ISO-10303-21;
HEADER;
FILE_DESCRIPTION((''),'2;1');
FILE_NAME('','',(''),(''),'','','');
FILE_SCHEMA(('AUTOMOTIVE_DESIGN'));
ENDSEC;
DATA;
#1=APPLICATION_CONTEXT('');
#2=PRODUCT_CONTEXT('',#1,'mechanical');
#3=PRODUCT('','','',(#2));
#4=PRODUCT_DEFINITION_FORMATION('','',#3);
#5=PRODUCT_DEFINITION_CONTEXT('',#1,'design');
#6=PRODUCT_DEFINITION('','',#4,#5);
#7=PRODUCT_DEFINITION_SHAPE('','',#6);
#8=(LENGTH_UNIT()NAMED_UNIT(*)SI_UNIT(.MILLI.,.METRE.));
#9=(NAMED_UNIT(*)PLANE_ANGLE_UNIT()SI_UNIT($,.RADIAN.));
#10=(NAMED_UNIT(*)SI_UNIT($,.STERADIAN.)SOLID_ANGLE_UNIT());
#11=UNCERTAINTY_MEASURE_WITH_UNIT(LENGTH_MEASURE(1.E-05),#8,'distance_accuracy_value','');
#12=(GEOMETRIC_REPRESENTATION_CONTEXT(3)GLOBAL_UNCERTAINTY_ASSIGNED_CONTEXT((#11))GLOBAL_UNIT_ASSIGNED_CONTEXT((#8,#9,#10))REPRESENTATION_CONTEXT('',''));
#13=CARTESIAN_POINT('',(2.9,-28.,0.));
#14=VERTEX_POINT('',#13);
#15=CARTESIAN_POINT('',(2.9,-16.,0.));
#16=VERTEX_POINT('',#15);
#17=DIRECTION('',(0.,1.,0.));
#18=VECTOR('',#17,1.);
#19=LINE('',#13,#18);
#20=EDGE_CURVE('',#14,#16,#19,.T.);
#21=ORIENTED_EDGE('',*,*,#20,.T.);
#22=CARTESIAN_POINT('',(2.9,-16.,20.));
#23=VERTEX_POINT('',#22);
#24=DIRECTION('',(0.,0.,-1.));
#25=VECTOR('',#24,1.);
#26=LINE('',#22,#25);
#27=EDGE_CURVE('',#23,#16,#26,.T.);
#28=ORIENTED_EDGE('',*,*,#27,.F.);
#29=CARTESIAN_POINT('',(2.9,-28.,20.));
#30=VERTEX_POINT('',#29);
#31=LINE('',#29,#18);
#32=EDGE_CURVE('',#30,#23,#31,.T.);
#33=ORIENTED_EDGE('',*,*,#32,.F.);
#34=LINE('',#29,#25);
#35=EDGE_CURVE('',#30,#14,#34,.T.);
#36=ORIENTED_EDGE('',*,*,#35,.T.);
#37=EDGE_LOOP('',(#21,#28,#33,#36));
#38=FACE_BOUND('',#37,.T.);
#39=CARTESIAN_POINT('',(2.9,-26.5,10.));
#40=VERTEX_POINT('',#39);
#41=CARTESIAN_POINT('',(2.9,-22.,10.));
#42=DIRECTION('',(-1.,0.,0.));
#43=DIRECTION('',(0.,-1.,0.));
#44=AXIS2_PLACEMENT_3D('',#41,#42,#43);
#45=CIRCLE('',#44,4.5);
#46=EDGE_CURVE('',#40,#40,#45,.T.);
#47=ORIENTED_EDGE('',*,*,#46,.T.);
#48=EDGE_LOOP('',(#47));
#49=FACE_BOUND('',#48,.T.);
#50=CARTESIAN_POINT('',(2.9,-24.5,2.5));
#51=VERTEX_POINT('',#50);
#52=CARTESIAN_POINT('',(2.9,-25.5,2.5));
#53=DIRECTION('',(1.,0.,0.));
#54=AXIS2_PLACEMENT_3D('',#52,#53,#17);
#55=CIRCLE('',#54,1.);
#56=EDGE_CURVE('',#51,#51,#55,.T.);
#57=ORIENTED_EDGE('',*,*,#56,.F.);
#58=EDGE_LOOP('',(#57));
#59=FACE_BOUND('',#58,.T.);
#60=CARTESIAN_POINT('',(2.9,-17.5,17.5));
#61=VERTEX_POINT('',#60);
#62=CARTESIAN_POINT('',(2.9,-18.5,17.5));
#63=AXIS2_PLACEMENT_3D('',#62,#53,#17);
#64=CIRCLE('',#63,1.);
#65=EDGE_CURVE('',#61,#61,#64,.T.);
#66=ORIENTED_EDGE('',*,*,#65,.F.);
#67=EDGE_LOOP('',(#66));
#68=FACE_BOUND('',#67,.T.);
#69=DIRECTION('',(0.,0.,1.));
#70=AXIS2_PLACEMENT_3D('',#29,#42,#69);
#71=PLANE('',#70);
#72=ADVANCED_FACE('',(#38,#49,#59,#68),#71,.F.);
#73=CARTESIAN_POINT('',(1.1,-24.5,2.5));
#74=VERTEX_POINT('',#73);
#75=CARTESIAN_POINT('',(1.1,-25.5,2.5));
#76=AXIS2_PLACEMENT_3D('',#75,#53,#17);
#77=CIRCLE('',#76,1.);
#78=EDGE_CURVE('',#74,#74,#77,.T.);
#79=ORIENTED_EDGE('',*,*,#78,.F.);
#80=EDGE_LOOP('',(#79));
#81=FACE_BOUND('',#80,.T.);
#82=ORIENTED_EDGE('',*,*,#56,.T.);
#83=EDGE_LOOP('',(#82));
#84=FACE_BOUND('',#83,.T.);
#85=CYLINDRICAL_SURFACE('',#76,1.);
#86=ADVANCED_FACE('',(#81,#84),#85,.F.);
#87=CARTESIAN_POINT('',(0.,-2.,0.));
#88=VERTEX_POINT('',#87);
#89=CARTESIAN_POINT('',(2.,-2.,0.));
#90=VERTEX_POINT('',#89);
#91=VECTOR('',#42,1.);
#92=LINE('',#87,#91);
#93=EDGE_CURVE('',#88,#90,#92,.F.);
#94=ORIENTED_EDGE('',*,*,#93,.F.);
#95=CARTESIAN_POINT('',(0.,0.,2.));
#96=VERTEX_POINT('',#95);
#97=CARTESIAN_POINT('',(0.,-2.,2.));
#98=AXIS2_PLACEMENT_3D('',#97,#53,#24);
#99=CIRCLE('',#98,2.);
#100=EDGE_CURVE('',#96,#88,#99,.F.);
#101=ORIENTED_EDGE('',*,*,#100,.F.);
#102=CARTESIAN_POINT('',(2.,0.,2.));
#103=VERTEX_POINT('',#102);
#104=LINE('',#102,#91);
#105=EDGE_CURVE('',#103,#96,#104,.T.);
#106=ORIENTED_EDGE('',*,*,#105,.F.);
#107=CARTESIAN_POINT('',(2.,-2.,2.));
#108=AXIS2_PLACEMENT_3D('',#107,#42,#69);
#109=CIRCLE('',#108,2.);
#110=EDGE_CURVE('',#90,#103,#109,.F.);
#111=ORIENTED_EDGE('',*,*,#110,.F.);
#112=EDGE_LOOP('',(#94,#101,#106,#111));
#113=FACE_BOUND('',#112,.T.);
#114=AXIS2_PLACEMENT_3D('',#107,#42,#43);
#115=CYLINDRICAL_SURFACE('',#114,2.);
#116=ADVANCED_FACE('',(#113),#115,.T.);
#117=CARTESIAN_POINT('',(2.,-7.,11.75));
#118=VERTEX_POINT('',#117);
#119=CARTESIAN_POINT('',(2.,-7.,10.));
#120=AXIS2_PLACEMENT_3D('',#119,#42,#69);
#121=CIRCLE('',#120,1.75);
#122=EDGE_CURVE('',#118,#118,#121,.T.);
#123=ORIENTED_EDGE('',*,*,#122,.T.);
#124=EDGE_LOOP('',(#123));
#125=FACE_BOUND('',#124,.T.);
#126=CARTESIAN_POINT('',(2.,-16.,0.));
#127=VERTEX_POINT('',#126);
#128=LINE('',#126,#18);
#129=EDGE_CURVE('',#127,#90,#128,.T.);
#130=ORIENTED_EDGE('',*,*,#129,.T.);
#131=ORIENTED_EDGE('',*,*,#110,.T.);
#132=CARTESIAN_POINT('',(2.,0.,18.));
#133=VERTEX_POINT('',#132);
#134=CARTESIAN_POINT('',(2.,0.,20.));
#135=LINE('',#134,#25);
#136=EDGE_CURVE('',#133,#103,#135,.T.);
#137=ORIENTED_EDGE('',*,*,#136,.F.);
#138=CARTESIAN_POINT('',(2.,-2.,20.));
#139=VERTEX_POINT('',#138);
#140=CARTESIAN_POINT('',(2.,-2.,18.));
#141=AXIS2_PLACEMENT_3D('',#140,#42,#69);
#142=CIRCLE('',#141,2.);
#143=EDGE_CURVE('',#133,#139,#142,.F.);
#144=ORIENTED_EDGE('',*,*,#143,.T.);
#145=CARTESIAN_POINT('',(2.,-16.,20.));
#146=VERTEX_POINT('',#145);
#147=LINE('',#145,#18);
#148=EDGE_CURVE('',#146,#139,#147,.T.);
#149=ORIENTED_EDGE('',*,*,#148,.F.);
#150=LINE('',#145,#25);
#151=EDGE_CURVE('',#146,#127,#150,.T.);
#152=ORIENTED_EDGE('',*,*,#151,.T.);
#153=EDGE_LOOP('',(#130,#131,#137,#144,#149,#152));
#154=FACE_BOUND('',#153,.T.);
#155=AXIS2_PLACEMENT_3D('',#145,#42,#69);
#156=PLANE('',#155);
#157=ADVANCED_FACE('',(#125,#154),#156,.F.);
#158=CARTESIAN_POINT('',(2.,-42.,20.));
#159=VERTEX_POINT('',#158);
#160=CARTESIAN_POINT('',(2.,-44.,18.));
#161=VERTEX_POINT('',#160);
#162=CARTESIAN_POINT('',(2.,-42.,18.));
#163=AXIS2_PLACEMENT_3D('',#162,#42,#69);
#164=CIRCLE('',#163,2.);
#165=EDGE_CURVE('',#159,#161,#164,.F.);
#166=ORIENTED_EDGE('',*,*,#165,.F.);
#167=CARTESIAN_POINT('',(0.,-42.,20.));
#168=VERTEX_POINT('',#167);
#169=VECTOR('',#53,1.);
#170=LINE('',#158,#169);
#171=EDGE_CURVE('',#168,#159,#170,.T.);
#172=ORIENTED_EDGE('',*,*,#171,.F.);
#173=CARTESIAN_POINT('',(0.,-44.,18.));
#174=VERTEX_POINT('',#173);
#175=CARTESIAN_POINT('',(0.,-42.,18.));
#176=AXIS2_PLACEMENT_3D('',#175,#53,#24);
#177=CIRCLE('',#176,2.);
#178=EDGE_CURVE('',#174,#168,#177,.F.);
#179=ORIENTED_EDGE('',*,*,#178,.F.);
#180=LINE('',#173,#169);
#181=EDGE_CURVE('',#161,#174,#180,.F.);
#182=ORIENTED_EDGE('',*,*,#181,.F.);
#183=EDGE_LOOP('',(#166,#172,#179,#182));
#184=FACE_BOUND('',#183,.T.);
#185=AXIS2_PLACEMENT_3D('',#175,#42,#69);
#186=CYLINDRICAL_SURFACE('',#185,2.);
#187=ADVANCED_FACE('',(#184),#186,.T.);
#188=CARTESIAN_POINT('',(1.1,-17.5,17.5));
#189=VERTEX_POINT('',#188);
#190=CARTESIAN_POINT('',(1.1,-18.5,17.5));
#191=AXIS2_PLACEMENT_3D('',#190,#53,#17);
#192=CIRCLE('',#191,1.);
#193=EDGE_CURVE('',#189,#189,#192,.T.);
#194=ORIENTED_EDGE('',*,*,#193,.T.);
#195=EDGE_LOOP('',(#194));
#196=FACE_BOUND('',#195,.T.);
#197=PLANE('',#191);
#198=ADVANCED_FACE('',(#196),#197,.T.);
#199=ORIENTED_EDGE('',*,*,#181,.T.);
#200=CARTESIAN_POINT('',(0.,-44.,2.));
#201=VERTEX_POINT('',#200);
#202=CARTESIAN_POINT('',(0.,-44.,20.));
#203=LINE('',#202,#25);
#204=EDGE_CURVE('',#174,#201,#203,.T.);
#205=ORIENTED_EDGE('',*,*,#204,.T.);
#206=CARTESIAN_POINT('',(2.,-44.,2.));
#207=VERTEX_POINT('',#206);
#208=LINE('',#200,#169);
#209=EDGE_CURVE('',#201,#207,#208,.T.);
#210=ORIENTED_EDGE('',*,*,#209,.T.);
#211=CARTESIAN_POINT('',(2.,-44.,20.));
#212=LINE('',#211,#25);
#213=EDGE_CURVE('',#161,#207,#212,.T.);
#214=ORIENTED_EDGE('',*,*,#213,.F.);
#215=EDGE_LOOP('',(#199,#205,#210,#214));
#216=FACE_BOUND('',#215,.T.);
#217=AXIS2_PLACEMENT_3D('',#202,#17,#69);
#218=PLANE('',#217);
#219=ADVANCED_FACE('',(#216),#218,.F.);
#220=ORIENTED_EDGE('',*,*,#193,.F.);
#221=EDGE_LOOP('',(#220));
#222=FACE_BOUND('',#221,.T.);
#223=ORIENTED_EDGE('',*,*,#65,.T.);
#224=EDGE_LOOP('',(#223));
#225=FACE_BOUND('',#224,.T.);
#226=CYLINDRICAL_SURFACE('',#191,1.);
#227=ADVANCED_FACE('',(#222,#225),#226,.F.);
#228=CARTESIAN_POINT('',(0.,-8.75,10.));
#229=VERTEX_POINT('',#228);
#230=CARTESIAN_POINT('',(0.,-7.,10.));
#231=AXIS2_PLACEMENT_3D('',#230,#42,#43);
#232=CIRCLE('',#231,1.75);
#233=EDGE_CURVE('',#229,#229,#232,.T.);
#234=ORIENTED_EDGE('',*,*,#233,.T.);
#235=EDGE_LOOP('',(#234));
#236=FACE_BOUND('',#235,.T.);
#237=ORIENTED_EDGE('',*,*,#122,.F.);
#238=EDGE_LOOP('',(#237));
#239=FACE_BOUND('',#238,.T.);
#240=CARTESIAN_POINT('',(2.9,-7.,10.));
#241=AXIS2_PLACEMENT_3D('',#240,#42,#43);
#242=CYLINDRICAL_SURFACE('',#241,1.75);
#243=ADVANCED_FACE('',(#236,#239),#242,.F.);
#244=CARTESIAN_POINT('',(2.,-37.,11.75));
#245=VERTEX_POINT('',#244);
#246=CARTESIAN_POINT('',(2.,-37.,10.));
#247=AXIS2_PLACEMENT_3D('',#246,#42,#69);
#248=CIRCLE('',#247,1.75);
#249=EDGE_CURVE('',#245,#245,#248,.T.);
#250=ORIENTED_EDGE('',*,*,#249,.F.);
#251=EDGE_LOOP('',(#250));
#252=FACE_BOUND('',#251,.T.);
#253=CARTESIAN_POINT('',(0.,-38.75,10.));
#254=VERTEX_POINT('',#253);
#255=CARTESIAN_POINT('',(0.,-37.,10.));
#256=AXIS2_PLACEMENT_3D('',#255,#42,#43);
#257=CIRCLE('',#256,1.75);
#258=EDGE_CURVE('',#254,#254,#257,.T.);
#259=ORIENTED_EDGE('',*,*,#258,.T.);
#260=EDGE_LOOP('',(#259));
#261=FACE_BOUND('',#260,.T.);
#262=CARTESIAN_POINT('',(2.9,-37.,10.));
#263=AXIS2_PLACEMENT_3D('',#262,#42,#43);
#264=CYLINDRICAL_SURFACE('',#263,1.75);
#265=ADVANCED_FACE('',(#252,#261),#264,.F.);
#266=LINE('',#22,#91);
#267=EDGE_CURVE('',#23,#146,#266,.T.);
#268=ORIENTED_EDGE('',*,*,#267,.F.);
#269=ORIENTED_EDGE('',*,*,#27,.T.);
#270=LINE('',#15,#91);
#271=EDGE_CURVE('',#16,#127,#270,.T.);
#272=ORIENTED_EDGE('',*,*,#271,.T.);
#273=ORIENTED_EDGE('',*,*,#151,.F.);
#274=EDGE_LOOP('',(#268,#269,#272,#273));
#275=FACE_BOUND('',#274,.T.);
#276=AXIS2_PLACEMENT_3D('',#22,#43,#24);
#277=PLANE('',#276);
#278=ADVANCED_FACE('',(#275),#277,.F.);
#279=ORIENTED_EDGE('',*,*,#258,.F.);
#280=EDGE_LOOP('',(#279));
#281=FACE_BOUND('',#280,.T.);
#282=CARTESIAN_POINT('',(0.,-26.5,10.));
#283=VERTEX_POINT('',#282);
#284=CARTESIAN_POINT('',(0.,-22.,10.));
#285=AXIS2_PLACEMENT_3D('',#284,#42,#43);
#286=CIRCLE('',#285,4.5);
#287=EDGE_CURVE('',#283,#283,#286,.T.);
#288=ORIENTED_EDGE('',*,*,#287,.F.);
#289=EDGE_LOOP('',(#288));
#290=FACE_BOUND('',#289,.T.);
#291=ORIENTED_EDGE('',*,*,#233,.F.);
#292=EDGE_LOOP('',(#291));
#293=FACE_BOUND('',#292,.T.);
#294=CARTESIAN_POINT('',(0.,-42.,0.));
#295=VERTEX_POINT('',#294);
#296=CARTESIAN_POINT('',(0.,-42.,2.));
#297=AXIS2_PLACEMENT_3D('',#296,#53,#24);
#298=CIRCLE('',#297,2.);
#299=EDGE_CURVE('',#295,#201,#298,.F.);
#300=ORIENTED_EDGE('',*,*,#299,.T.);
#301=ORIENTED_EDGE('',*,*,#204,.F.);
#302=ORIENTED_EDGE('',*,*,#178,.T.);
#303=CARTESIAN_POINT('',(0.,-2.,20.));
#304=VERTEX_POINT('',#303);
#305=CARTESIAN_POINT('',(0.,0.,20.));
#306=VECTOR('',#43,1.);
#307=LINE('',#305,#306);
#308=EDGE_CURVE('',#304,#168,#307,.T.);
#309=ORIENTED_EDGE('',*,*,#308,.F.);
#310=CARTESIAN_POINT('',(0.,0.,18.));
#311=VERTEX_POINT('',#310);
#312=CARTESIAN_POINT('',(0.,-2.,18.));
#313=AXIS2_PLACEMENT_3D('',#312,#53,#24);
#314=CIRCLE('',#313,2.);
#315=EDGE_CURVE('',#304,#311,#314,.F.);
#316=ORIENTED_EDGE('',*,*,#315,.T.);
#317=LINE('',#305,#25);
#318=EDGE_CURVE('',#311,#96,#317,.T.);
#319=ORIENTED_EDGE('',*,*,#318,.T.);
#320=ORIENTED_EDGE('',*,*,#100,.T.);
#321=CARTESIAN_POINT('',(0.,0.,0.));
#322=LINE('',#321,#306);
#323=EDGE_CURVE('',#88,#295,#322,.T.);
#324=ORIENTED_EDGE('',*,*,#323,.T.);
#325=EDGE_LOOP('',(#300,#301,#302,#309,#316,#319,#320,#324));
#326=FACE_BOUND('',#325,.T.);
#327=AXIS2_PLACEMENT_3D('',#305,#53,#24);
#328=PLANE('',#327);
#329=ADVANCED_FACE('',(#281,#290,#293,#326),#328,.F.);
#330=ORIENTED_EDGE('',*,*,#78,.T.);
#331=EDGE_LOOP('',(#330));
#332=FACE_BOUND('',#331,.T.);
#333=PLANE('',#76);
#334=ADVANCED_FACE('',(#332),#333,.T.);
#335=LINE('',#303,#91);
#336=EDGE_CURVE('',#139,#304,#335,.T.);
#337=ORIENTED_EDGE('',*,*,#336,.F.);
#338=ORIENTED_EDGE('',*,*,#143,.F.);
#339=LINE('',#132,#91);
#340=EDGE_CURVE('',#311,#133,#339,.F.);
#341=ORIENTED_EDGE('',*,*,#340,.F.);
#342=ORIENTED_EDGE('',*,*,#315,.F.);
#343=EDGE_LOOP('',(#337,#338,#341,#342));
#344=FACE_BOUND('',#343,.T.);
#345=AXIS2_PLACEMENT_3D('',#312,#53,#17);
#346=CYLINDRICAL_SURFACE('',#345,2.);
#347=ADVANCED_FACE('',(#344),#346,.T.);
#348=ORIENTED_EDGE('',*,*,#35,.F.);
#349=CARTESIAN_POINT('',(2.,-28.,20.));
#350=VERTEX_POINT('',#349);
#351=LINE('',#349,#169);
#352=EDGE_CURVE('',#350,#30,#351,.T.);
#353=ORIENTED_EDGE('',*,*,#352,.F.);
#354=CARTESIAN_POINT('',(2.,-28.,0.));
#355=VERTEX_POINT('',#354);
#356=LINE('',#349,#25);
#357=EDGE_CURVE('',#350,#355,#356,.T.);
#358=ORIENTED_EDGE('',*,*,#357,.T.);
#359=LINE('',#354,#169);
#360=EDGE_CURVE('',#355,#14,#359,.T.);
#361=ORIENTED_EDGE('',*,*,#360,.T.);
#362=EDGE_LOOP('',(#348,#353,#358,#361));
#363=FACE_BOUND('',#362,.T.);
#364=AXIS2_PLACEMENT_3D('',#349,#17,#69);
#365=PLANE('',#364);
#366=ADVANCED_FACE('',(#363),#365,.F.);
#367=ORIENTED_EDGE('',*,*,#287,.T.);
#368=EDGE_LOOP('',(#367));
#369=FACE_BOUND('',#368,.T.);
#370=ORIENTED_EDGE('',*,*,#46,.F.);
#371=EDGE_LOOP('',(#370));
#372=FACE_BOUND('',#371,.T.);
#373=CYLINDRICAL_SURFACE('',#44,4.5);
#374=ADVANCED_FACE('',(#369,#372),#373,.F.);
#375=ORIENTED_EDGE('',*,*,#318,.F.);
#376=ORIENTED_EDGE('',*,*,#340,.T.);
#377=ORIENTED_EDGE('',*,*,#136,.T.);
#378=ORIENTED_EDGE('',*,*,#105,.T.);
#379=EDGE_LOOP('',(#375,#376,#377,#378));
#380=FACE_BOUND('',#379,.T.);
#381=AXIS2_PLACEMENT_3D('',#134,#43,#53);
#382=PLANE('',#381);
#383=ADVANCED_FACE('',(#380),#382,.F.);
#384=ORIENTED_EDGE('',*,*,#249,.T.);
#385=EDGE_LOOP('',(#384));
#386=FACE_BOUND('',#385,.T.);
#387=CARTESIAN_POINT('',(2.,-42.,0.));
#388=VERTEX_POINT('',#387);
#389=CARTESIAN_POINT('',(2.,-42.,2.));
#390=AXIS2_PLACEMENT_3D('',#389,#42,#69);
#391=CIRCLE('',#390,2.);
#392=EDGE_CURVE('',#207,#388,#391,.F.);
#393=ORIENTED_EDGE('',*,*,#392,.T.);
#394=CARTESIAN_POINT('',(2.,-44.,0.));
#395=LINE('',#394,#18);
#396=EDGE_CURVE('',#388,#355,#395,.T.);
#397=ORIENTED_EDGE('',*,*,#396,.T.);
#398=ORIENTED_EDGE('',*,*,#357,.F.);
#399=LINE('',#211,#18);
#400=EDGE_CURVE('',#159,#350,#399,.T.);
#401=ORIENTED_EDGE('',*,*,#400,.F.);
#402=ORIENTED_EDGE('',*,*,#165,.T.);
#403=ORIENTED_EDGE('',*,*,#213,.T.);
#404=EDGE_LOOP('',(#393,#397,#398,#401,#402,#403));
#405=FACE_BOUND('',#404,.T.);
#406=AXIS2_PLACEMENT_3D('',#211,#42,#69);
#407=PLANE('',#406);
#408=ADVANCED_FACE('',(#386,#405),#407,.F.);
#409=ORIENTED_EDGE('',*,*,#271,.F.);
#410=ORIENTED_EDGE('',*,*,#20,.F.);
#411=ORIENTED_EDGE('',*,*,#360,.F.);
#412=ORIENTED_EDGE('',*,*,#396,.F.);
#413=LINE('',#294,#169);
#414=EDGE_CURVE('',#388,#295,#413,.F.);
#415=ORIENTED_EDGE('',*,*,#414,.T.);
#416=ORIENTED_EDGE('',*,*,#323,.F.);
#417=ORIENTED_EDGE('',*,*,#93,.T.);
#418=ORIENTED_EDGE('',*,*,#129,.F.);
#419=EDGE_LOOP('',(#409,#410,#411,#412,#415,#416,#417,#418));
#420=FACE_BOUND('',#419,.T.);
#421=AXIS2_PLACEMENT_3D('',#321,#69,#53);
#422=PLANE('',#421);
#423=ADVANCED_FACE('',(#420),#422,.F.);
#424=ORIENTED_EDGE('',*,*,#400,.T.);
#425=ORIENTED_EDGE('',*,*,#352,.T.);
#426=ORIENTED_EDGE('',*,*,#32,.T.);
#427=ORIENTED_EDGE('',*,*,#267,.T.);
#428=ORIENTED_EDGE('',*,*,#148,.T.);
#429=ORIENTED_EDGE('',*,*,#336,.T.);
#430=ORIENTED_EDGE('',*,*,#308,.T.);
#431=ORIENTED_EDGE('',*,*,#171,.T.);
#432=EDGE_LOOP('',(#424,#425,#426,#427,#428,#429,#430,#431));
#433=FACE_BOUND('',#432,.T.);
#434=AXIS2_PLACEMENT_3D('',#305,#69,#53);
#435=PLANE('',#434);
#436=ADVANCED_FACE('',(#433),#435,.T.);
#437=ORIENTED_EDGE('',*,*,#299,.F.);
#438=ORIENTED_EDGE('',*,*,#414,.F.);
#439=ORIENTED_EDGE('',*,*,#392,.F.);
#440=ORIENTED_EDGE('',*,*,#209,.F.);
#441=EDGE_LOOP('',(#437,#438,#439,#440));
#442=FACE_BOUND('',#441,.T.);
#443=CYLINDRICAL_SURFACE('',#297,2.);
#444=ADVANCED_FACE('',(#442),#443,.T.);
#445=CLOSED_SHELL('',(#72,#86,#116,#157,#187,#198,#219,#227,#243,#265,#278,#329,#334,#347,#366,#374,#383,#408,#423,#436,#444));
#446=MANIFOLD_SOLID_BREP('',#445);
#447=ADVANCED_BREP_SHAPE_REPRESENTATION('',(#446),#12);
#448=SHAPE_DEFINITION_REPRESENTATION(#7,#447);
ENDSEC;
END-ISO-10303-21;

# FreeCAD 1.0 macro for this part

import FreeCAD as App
import Part
import Sketcher
Q = App.Units.Quantity


def edges_at(feature, points):
    """Names of the edges that pass closest to the given points."""
    edges = feature.Shape.Edges
    near = lambda p: min(range(len(edges)), key=lambda i: edges[i].distToShape(Part.Vertex(*p))[0])
    return sorted({f"Edge{near(p) + 1}" for p in points})


def add_polygon(sketch, points):
    """Adds a closed chain of lines whose ends are joined by coincident constraints."""
    first, n = sketch.GeometryCount, len(points)
    for a, b in zip(points, points[1:] + points[:1]):
        sketch.addGeometry(Part.LineSegment(App.Vector(*a, 0), App.Vector(*b, 0)), False)
    for i in range(n):
        sketch.addConstraint(Sketcher.Constraint("Coincident", first + i, 2, first + (i + 1) % n, 1))

doc = App.newDocument("Part")
body = doc.addObject("PartDesign::Body", "Body")

# Sketch on XY plane
sketch1 = body.newObject("Sketcher::SketchObject", "Sketch")
sketch1.AttachmentSupport = (doc.getObject("XY_Plane"), [""])
sketch1.MapMode = "FlatFace"
add_polygon(sketch1, [(0, 0), (0, -44), (2, -44), (2, -28), (2.9, -28), (2.9, -16), (2, -16), (2, 0)])  # lines 0-7
sketch1.addConstraint(Sketcher.Constraint("Vertical", 0))
sketch1.addConstraint(Sketcher.Constraint("Horizontal", 1))
sketch1.addConstraint(Sketcher.Constraint("Vertical", 2))
sketch1.addConstraint(Sketcher.Constraint("Horizontal", 3))
sketch1.addConstraint(Sketcher.Constraint("Vertical", 4))
sketch1.addConstraint(Sketcher.Constraint("Horizontal", 5))
sketch1.addConstraint(Sketcher.Constraint("Vertical", 6))
sketch1.addConstraint(Sketcher.Constraint("Horizontal", 7))
sketch1.addConstraint(Sketcher.Constraint("Coincident", 7, 2, -1, 1))
sketch1.addConstraint(Sketcher.Constraint("Vertical", 2, 2, 5, 2))
sketch1.addConstraint(Sketcher.Constraint("Equal", 2, 6))
sketch1.addConstraint(Sketcher.Constraint("DistanceX", 1, 1, 1, 2, Q("2 mm")))
sketch1.addConstraint(Sketcher.Constraint("DistanceY", 0, 2, 0, 1, Q("44 mm")))
sketch1.addConstraint(Sketcher.Constraint("DistanceY", 2, 1, 2, 2, Q("16 mm")))
sketch1.addConstraint(Sketcher.Constraint("DistanceX", 3, 1, 3, 2, Q("0.9 mm")))
pad1 = body.newObject("PartDesign::Pad", "Pad")
pad1.Profile = sketch1
pad1.Length = 20

# Sketch on YZ plane
sketch2 = body.newObject("Sketcher::SketchObject", "Sketch001")
sketch2.AttachmentSupport = (doc.getObject("YZ_Plane"), [""])
sketch2.MapMode = "FlatFace"
sketch2.addGeometry(Part.Circle(App.Vector(-7, 10, 0), App.Vector(0, 0, 1), 1.8), False)
sketch2.addGeometry(Part.Circle(App.Vector(-37, 10, 0), App.Vector(0, 0, 1), 1.8), False)
sketch2.addGeometry(Part.Circle(App.Vector(-22, 10, 0), App.Vector(0, 0, 1), 4.5), False)
sketch2.addConstraint(Sketcher.Constraint("Equal", 0, 1))
sketch2.addConstraint(Sketcher.Constraint("Horizontal", 0, 3, 1, 3))
sketch2.addConstraint(Sketcher.Constraint("Horizontal", 1, 3, 2, 3))
sketch2.addConstraint(Sketcher.Constraint("Diameter", 2, Q("9 mm")))
sketch2.addConstraint(Sketcher.Constraint("Diameter", 0, Q("3.5 mm")))
sketch2.addConstraint(Sketcher.Constraint("DistanceX", 0, 3, -1, 1, Q("7 mm")))
sketch2.addConstraint(Sketcher.Constraint("DistanceY", -1, 1, 0, 3, Q("10 mm")))
sketch2.addConstraint(Sketcher.Constraint("DistanceX", 1, 3, -1, 1, Q("37 mm")))
sketch2.addConstraint(Sketcher.Constraint("DistanceX", 2, 3, -1, 1, Q("22 mm")))
pocket1 = body.newObject("PartDesign::Pocket", "Pocket")
pocket1.Profile = sketch2
pocket1.Type = "ThroughAll"
pocket1.Reversed = True

# Sketch on YZ plane
sketch3 = body.newObject("Sketcher::SketchObject", "Sketch002")
sketch3.AttachmentSupport = (doc.getObject("YZ_Plane"), [""])
sketch3.MapMode = "FlatFace"
sketch3.AttachmentOffset = App.Placement(App.Vector(0, 0, 2.9), App.Rotation())
sketch3.addGeometry(Part.Circle(App.Vector(-18.5, 17.5, 0), App.Vector(0, 0, 1), 1), False)
sketch3.addGeometry(Part.Circle(App.Vector(-25.5, 2.5, 0), App.Vector(0, 0, 1), 1), False)
sketch3.addConstraint(Sketcher.Constraint("Equal", 0, 1))
sketch3.addConstraint(Sketcher.Constraint("Diameter", 0, Q("2 mm")))
sketch3.addConstraint(Sketcher.Constraint("DistanceX", 1, 3, 0, 3, Q("7 mm")))
sketch3.addConstraint(Sketcher.Constraint("DistanceY", 1, 3, 0, 3, Q("15 mm")))
sketch3.addConstraint(Sketcher.Constraint("DistanceX", 0, 3, -1, 1, Q("18.5 mm")))
sketch3.addConstraint(Sketcher.Constraint("DistanceY", -1, 1, 0, 3, Q("17.5 mm")))
pocket2 = body.newObject("PartDesign::Pocket", "Pocket001")
pocket2.Profile = sketch3
pocket2.Length = 1.8
doc.recompute()

fillet = body.newObject("PartDesign::Fillet", "Fillet")
fillet.Base = (pocket2, edges_at(pocket2, [
    (1, -44, 20),
    (1, 0, 0),
    (1, 0, 20),
    (1, -44, 0),
]))
fillet.Radius = 2

doc.recompute()
